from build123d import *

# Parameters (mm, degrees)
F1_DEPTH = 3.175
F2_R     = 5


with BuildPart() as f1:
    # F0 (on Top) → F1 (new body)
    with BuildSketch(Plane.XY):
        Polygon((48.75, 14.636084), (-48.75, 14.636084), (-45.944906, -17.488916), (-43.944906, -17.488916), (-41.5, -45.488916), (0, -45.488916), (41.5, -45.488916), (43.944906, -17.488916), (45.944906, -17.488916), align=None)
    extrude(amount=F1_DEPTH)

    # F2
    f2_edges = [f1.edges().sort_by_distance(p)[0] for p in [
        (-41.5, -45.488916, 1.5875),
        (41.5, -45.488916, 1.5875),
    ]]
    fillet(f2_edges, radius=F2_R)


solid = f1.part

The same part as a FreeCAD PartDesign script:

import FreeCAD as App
import Part
import Sketcher

V = App.Vector


def edges_at(feature, points):
    """Names of the edges that pass closest to the given points."""
    edges = feature.Shape.Edges
    near = lambda p: min(range(len(edges)), key=lambda i: edges[i].distToShape(Part.Vertex(*p))[0])
    return sorted({f"Edge{near(p) + 1}" for p in points})


def add_polygon(sketch, points):
    """Adds a closed chain of lines whose ends are joined by coincident constraints."""
    first, n = sketch.GeometryCount, len(points)
    for a, b in zip(points, points[1:] + points[:1]):
        sketch.addGeometry(Part.LineSegment(App.Vector(*a, 0), App.Vector(*b, 0)), False)
    for i in range(n):
        sketch.addConstraint(Sketcher.Constraint("Coincident", first + i, 2, first + (i + 1) % n, 1))

doc = App.newDocument("Part")
body = doc.addObject("PartDesign::Body", "Body")

# Sketch on XY plane
sketch1 = body.newObject("Sketcher::SketchObject", "Sketch")
sketch1.AttachmentSupport = (doc.getObject("XY_Plane"), [""])
sketch1.MapMode = "FlatFace"
add_polygon(sketch1, [(48.8, 14.6), (-48.8, 14.6), (-45.9, -17.5), (-43.9, -17.5), (-41.5, -45.5), (41.5, -45.5), (43.9, -17.5), (45.9, -17.5)])  # lines 0-7
sketch1.addConstraint([
    Sketcher.Constraint("Horizontal", 0),
    Sketcher.Constraint("Horizontal", 2),
    Sketcher.Constraint("Horizontal", 4),
    Sketcher.Constraint("Horizontal", 6),
    Sketcher.Constraint("Symmetric", 2, 2, 5, 2, -2),
    Sketcher.Constraint("Parallel", 1, 3),
    Sketcher.Constraint("Parallel", 5, 7),
    Sketcher.Constraint("Equal", 2, 6),
    Sketcher.Constraint("Equal", 3, 5),
    Sketcher.Constraint("DistanceX", 2, 1, 2, 2, 2.0),
    Sketcher.Constraint("DistanceX", 4, 1, 4, 2, 83.0),
    Sketcher.Constraint("DistanceX", 0, 2, 0, 1, 97.5),
    Sketcher.Constraint("DistanceY", 3, 2, 2, 2, 28.0),
    Sketcher.Constraint("DistanceY", 1, 2, 0, 2, 32.125),
    Sketcher.Constraint("DistanceY", -1, 1, 0, 2, 14.636084),
])
pad1 = body.newObject("PartDesign::Pad", "Pad")
pad1.Profile = sketch1
pad1.Length = 3.175
doc.recompute()

fillet = body.newObject("PartDesign::Fillet", "Fillet")
fillet.Base = (pad1, edges_at(pad1, [(-41.5, -45.489, 1.587), (41.5, -45.489, 1.587)]))
fillet.Radius = 5

doc.recompute()
